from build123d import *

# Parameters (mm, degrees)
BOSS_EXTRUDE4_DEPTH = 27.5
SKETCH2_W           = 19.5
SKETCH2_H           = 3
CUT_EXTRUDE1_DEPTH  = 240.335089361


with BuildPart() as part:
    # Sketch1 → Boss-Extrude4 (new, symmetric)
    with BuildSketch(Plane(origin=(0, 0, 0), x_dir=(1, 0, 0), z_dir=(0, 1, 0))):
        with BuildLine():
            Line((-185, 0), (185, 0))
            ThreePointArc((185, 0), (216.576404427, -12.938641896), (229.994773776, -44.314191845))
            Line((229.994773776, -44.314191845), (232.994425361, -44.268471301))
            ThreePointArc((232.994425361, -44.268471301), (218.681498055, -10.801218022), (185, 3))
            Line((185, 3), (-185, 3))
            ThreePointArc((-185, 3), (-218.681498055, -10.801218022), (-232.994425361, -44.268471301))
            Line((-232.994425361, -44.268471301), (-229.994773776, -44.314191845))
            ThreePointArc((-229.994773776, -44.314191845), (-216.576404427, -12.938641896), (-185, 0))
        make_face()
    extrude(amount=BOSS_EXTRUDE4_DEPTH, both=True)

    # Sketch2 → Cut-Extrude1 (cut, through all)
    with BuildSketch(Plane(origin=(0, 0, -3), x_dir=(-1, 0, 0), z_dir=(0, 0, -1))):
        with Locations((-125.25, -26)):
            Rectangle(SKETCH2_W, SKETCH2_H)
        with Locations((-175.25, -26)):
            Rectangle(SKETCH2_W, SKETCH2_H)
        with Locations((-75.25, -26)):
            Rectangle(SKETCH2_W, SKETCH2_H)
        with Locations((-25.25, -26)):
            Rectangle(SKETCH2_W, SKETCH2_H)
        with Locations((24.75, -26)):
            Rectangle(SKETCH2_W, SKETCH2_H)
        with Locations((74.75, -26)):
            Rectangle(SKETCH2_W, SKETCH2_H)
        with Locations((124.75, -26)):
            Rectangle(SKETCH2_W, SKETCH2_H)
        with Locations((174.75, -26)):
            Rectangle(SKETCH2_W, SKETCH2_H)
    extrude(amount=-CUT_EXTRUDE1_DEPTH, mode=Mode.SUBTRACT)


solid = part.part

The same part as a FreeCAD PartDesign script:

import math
import FreeCAD as App
import Part
import Sketcher
from FreeCAD import Vector
Q = App.Units.Quantity


def add_polygon(sketch, points):
    """Adds a closed chain of lines whose ends are joined by coincident constraints."""
    first, n = sketch.GeometryCount, len(points)
    for a, b in zip(points, points[1:] + points[:1]):
        sketch.addGeometry(Part.LineSegment(App.Vector(*a, 0), App.Vector(*b, 0)), False)
    for i in range(n):
        sketch.addConstraint(Sketcher.Constraint("Coincident", first + i, 2, first + (i + 1) % n, 1))

doc = App.newDocument("Part")
body = doc.addObject("PartDesign::Body", "Body")

# Sketch on XZ plane
sketch1 = doc.addObject("Sketcher::SketchObject", "Sketch")
body.addObject(sketch1)
sketch1.AttachmentSupport = (doc.XZ_Plane, [""])
sketch1.MapMode = "FlatFace"
sketch1.addGeometry(Part.LineSegment(Vector(-185, 0, 0), Vector(185, 0, 0)), False)
sketch1.addGeometry(Part.ArcOfCircle(Part.Circle(Vector(185, 45, 0), Vector(0, 0, 1), 45), math.radians(-90), math.radians(-1)), False)
sketch1.addGeometry(Part.LineSegment(Vector(230, 44.3, 0), Vector(233, 44.3, 0)), False)
sketch1.addGeometry(Part.ArcOfCircle(Part.Circle(Vector(185, 45, 0), Vector(0, 0, 1), 48), math.radians(-90), math.radians(-1)), False)
sketch1.addGeometry(Part.LineSegment(Vector(185, -3, 0), Vector(-185, -3, 0)), False)
sketch1.addGeometry(Part.ArcOfCircle(Part.Circle(Vector(-185, 45, 0), Vector(0, 0, 1), 48), math.radians(-179), math.radians(-90)), False)
sketch1.addGeometry(Part.LineSegment(Vector(-233, 44.3, 0), Vector(-230, 44.3, 0)), False)
sketch1.addGeometry(Part.ArcOfCircle(Part.Circle(Vector(-185, 45, 0), Vector(0, 0, 1), 45), math.radians(-179), math.radians(-90)), False)
sketch1.addConstraint(Sketcher.Constraint("Tangent", 0, 2, 1, 1))
sketch1.addConstraint(Sketcher.Constraint("Coincident", 1, 2, 2, 1))
sketch1.addConstraint(Sketcher.Constraint("Coincident", 2, 2, 3, 2))
sketch1.addConstraint(Sketcher.Constraint("Tangent", 3, 1, 4, 1))
sketch1.addConstraint(Sketcher.Constraint("Tangent", 4, 2, 5, 2))
sketch1.addConstraint(Sketcher.Constraint("Coincident", 5, 1, 6, 1))
sketch1.addConstraint(Sketcher.Constraint("Coincident", 6, 2, 7, 1))
sketch1.addConstraint(Sketcher.Constraint("Tangent", 7, 2, 0, 1))
sketch1.addConstraint(Sketcher.Constraint("Horizontal", 0))
sketch1.addConstraint(Sketcher.Constraint("Horizontal", 4))
sketch1.addConstraint(Sketcher.Constraint("Coincident", 3, 3, 1, 3))
sketch1.addConstraint(Sketcher.Constraint("Coincident", 7, 3, 5, 3))
sketch1.addConstraint(Sketcher.Constraint("Equal", 3, 5))
sketch1.addConstraint(Sketcher.Constraint("Symmetric", 0, 2, 7, 2, -1, 1))
sketch1.addConstraint(Sketcher.Constraint("Horizontal", 2, 2, 5, 1))
sketch1.addConstraint(Sketcher.Constraint("Horizontal", 1, 2, 6, 2))
sketch1.addConstraint(Sketcher.Constraint("Radius", 1, Q("45 mm")))
sketch1.addConstraint(Sketcher.Constraint("Radius", 3, Q("48 mm")))
sketch1.addConstraint(Sketcher.Constraint("DistanceX", 0, 1, 0, 2, Q("370 mm")))
sketch1.addConstraint(Sketcher.Constraint("DistanceY", -1, 1, 1, 2, Q("44.314192 mm")))
sketch1.addConstraint(Sketcher.Constraint("DistanceY", -1, 1, 2, 2, Q("44.268471 mm")))
pad1 = doc.addObject("PartDesign::Pad", "Pad")
body.addObject(pad1)
pad1.Profile = sketch1
pad1.Length = 55
pad1.Midplane = True

# Sketch on XY plane
sketch2 = doc.addObject("Sketcher::SketchObject", "Sketch001")
body.addObject(sketch2)
sketch2.AttachmentSupport = (doc.XY_Plane, [""])
sketch2.MapMode = "FlatFace"
sketch2.AttachmentOffset = App.Placement(Vector(0, 0, -3), App.Rotation())
add_polygon(sketch2, [(135, -24.5), (135, -27.5), (115.5, -27.5), (115.5, -24.5)])  # lines 0-3
add_polygon(sketch2, [(185, -24.5), (185, -27.5), (165.5, -27.5), (165.5, -24.5)])  # lines 4-7
add_polygon(sketch2, [(85, -24.5), (85, -27.5), (65.5, -27.5), (65.5, -24.5)])  # lines 8-11
add_polygon(sketch2, [(35, -24.5), (35, -27.5), (15.5, -27.5), (15.5, -24.5)])  # lines 12-15
add_polygon(sketch2, [(-15, -24.5), (-15, -27.5), (-34.5, -27.5), (-34.5, -24.5)])  # lines 16-19
add_polygon(sketch2, [(-65, -24.5), (-65, -27.5), (-84.5, -27.5), (-84.5, -24.5)])  # lines 20-23
add_polygon(sketch2, [(-115, -24.5), (-115, -27.5), (-134.5, -27.5), (-134.5, -24.5)])  # lines 24-27
add_polygon(sketch2, [(-165, -24.5), (-165, -27.5), (-184.5, -27.5), (-184.5, -24.5)])  # lines 28-31
sketch2.addConstraint(Sketcher.Constraint("Vertical", 0))
sketch2.addConstraint(Sketcher.Constraint("Horizontal", 1))
sketch2.addConstraint(Sketcher.Constraint("Vertical", 2))
sketch2.addConstraint(Sketcher.Constraint("Horizontal", 3))
sketch2.addConstraint(Sketcher.Constraint("Vertical", 4))
sketch2.addConstraint(Sketcher.Constraint("Horizontal", 5))
sketch2.addConstraint(Sketcher.Constraint("Vertical", 6))
sketch2.addConstraint(Sketcher.Constraint("Horizontal", 7))
sketch2.addConstraint(Sketcher.Constraint("Vertical", 8))
sketch2.addConstraint(Sketcher.Constraint("Horizontal", 9))
sketch2.addConstraint(Sketcher.Constraint("Vertical", 10))
sketch2.addConstraint(Sketcher.Constraint("Horizontal", 11))
sketch2.addConstraint(Sketcher.Constraint("Vertical", 12))
sketch2.addConstraint(Sketcher.Constraint("Horizontal", 13))
sketch2.addConstraint(Sketcher.Constraint("Vertical", 14))
sketch2.addConstraint(Sketcher.Constraint("Horizontal", 15))
sketch2.addConstraint(Sketcher.Constraint("Vertical", 16))
sketch2.addConstraint(Sketcher.Constraint("Horizontal", 17))
sketch2.addConstraint(Sketcher.Constraint("Vertical", 18))
sketch2.addConstraint(Sketcher.Constraint("Horizontal", 19))
sketch2.addConstraint(Sketcher.Constraint("Vertical", 20))
sketch2.addConstraint(Sketcher.Constraint("Horizontal", 21))
sketch2.addConstraint(Sketcher.Constraint("Vertical", 22))
sketch2.addConstraint(Sketcher.Constraint("Horizontal", 23))
sketch2.addConstraint(Sketcher.Constraint("Vertical", 24))
sketch2.addConstraint(Sketcher.Constraint("Horizontal", 25))
sketch2.addConstraint(Sketcher.Constraint("Vertical", 26))
sketch2.addConstraint(Sketcher.Constraint("Horizontal", 27))
sketch2.addConstraint(Sketcher.Constraint("Vertical", 28))
sketch2.addConstraint(Sketcher.Constraint("Horizontal", 29))
sketch2.addConstraint(Sketcher.Constraint("Vertical", 30))
sketch2.addConstraint(Sketcher.Constraint("Horizontal", 31))
sketch2.addConstraint(Sketcher.Constraint("Horizontal", 1, 2, 4, 2))
sketch2.addConstraint(Sketcher.Constraint("Horizontal", 3, 2, 6, 2))
sketch2.addConstraint(Sketcher.Constraint("Horizontal", 5, 2, 8, 2))
sketch2.addConstraint(Sketcher.Constraint("Horizontal", 7, 2, 10, 2))
sketch2.addConstraint(Sketcher.Constraint("Horizontal", 9, 2, 12, 2))
sketch2.addConstraint(Sketcher.Constraint("Horizontal", 11, 2, 14, 2))
sketch2.addConstraint(Sketcher.Constraint("Horizontal", 13, 2, 16, 2))
sketch2.addConstraint(Sketcher.Constraint("Horizontal", 15, 2, 18, 2))
sketch2.addConstraint(Sketcher.Constraint("Horizontal", 17, 2, 20, 2))
sketch2.addConstraint(Sketcher.Constraint("Horizontal", 19, 2, 22, 2))
sketch2.addConstraint(Sketcher.Constraint("Horizontal", 21, 2, 24, 2))
sketch2.addConstraint(Sketcher.Constraint("Horizontal", 23, 2, 26, 2))
sketch2.addConstraint(Sketcher.Constraint("Horizontal", 25, 2, 28, 2))
sketch2.addConstraint(Sketcher.Constraint("Horizontal", 27, 2, 30, 2))
sketch2.addConstraint(Sketcher.Constraint("Equal", 3, 5))
sketch2.addConstraint(Sketcher.Constraint("Equal", 7, 9))
sketch2.addConstraint(Sketcher.Constraint("Equal", 11, 13))
sketch2.addConstraint(Sketcher.Constraint("Equal", 15, 17))
sketch2.addConstraint(Sketcher.Constraint("Equal", 19, 21))
sketch2.addConstraint(Sketcher.Constraint("Equal", 23, 25))
sketch2.addConstraint(Sketcher.Constraint("Equal", 27, 29))
sketch2.addConstraint(Sketcher.Constraint("DistanceY", 0, 2, 0, 1, Q("3 mm")))
sketch2.addConstraint(Sketcher.Constraint("DistanceX", 1, 2, 1, 1, Q("19.5 mm")))
sketch2.addConstraint(Sketcher.Constraint("DistanceX", -1, 1, 0, 2, Q("135 mm")))
sketch2.addConstraint(Sketcher.Constraint("DistanceX", -1, 1, 4, 2, Q("185 mm")))
sketch2.addConstraint(Sketcher.Constraint("DistanceX", -1, 1, 8, 2, Q("85 mm")))
sketch2.addConstraint(Sketcher.Constraint("DistanceX", -1, 1, 12, 2, Q("35 mm")))
sketch2.addConstraint(Sketcher.Constraint("DistanceX", 16, 2, -1, 1, Q("15 mm")))
sketch2.addConstraint(Sketcher.Constraint("DistanceX", 20, 2, -1, 1, Q("65 mm")))
sketch2.addConstraint(Sketcher.Constraint("DistanceX", 24, 2, -1, 1, Q("115 mm")))
sketch2.addConstraint(Sketcher.Constraint("DistanceX", 28, 2, -1, 1, Q("165 mm")))
sketch2.addConstraint(Sketcher.Constraint("DistanceY", 0, 2, -1, 1, Q("27.5 mm")))
pocket1 = doc.addObject("PartDesign::Pocket", "Pocket")
body.addObject(pocket1)
pocket1.Profile = sketch2
pocket1.Type = "ThroughAll"
pocket1.Reversed = True

doc.recompute()
